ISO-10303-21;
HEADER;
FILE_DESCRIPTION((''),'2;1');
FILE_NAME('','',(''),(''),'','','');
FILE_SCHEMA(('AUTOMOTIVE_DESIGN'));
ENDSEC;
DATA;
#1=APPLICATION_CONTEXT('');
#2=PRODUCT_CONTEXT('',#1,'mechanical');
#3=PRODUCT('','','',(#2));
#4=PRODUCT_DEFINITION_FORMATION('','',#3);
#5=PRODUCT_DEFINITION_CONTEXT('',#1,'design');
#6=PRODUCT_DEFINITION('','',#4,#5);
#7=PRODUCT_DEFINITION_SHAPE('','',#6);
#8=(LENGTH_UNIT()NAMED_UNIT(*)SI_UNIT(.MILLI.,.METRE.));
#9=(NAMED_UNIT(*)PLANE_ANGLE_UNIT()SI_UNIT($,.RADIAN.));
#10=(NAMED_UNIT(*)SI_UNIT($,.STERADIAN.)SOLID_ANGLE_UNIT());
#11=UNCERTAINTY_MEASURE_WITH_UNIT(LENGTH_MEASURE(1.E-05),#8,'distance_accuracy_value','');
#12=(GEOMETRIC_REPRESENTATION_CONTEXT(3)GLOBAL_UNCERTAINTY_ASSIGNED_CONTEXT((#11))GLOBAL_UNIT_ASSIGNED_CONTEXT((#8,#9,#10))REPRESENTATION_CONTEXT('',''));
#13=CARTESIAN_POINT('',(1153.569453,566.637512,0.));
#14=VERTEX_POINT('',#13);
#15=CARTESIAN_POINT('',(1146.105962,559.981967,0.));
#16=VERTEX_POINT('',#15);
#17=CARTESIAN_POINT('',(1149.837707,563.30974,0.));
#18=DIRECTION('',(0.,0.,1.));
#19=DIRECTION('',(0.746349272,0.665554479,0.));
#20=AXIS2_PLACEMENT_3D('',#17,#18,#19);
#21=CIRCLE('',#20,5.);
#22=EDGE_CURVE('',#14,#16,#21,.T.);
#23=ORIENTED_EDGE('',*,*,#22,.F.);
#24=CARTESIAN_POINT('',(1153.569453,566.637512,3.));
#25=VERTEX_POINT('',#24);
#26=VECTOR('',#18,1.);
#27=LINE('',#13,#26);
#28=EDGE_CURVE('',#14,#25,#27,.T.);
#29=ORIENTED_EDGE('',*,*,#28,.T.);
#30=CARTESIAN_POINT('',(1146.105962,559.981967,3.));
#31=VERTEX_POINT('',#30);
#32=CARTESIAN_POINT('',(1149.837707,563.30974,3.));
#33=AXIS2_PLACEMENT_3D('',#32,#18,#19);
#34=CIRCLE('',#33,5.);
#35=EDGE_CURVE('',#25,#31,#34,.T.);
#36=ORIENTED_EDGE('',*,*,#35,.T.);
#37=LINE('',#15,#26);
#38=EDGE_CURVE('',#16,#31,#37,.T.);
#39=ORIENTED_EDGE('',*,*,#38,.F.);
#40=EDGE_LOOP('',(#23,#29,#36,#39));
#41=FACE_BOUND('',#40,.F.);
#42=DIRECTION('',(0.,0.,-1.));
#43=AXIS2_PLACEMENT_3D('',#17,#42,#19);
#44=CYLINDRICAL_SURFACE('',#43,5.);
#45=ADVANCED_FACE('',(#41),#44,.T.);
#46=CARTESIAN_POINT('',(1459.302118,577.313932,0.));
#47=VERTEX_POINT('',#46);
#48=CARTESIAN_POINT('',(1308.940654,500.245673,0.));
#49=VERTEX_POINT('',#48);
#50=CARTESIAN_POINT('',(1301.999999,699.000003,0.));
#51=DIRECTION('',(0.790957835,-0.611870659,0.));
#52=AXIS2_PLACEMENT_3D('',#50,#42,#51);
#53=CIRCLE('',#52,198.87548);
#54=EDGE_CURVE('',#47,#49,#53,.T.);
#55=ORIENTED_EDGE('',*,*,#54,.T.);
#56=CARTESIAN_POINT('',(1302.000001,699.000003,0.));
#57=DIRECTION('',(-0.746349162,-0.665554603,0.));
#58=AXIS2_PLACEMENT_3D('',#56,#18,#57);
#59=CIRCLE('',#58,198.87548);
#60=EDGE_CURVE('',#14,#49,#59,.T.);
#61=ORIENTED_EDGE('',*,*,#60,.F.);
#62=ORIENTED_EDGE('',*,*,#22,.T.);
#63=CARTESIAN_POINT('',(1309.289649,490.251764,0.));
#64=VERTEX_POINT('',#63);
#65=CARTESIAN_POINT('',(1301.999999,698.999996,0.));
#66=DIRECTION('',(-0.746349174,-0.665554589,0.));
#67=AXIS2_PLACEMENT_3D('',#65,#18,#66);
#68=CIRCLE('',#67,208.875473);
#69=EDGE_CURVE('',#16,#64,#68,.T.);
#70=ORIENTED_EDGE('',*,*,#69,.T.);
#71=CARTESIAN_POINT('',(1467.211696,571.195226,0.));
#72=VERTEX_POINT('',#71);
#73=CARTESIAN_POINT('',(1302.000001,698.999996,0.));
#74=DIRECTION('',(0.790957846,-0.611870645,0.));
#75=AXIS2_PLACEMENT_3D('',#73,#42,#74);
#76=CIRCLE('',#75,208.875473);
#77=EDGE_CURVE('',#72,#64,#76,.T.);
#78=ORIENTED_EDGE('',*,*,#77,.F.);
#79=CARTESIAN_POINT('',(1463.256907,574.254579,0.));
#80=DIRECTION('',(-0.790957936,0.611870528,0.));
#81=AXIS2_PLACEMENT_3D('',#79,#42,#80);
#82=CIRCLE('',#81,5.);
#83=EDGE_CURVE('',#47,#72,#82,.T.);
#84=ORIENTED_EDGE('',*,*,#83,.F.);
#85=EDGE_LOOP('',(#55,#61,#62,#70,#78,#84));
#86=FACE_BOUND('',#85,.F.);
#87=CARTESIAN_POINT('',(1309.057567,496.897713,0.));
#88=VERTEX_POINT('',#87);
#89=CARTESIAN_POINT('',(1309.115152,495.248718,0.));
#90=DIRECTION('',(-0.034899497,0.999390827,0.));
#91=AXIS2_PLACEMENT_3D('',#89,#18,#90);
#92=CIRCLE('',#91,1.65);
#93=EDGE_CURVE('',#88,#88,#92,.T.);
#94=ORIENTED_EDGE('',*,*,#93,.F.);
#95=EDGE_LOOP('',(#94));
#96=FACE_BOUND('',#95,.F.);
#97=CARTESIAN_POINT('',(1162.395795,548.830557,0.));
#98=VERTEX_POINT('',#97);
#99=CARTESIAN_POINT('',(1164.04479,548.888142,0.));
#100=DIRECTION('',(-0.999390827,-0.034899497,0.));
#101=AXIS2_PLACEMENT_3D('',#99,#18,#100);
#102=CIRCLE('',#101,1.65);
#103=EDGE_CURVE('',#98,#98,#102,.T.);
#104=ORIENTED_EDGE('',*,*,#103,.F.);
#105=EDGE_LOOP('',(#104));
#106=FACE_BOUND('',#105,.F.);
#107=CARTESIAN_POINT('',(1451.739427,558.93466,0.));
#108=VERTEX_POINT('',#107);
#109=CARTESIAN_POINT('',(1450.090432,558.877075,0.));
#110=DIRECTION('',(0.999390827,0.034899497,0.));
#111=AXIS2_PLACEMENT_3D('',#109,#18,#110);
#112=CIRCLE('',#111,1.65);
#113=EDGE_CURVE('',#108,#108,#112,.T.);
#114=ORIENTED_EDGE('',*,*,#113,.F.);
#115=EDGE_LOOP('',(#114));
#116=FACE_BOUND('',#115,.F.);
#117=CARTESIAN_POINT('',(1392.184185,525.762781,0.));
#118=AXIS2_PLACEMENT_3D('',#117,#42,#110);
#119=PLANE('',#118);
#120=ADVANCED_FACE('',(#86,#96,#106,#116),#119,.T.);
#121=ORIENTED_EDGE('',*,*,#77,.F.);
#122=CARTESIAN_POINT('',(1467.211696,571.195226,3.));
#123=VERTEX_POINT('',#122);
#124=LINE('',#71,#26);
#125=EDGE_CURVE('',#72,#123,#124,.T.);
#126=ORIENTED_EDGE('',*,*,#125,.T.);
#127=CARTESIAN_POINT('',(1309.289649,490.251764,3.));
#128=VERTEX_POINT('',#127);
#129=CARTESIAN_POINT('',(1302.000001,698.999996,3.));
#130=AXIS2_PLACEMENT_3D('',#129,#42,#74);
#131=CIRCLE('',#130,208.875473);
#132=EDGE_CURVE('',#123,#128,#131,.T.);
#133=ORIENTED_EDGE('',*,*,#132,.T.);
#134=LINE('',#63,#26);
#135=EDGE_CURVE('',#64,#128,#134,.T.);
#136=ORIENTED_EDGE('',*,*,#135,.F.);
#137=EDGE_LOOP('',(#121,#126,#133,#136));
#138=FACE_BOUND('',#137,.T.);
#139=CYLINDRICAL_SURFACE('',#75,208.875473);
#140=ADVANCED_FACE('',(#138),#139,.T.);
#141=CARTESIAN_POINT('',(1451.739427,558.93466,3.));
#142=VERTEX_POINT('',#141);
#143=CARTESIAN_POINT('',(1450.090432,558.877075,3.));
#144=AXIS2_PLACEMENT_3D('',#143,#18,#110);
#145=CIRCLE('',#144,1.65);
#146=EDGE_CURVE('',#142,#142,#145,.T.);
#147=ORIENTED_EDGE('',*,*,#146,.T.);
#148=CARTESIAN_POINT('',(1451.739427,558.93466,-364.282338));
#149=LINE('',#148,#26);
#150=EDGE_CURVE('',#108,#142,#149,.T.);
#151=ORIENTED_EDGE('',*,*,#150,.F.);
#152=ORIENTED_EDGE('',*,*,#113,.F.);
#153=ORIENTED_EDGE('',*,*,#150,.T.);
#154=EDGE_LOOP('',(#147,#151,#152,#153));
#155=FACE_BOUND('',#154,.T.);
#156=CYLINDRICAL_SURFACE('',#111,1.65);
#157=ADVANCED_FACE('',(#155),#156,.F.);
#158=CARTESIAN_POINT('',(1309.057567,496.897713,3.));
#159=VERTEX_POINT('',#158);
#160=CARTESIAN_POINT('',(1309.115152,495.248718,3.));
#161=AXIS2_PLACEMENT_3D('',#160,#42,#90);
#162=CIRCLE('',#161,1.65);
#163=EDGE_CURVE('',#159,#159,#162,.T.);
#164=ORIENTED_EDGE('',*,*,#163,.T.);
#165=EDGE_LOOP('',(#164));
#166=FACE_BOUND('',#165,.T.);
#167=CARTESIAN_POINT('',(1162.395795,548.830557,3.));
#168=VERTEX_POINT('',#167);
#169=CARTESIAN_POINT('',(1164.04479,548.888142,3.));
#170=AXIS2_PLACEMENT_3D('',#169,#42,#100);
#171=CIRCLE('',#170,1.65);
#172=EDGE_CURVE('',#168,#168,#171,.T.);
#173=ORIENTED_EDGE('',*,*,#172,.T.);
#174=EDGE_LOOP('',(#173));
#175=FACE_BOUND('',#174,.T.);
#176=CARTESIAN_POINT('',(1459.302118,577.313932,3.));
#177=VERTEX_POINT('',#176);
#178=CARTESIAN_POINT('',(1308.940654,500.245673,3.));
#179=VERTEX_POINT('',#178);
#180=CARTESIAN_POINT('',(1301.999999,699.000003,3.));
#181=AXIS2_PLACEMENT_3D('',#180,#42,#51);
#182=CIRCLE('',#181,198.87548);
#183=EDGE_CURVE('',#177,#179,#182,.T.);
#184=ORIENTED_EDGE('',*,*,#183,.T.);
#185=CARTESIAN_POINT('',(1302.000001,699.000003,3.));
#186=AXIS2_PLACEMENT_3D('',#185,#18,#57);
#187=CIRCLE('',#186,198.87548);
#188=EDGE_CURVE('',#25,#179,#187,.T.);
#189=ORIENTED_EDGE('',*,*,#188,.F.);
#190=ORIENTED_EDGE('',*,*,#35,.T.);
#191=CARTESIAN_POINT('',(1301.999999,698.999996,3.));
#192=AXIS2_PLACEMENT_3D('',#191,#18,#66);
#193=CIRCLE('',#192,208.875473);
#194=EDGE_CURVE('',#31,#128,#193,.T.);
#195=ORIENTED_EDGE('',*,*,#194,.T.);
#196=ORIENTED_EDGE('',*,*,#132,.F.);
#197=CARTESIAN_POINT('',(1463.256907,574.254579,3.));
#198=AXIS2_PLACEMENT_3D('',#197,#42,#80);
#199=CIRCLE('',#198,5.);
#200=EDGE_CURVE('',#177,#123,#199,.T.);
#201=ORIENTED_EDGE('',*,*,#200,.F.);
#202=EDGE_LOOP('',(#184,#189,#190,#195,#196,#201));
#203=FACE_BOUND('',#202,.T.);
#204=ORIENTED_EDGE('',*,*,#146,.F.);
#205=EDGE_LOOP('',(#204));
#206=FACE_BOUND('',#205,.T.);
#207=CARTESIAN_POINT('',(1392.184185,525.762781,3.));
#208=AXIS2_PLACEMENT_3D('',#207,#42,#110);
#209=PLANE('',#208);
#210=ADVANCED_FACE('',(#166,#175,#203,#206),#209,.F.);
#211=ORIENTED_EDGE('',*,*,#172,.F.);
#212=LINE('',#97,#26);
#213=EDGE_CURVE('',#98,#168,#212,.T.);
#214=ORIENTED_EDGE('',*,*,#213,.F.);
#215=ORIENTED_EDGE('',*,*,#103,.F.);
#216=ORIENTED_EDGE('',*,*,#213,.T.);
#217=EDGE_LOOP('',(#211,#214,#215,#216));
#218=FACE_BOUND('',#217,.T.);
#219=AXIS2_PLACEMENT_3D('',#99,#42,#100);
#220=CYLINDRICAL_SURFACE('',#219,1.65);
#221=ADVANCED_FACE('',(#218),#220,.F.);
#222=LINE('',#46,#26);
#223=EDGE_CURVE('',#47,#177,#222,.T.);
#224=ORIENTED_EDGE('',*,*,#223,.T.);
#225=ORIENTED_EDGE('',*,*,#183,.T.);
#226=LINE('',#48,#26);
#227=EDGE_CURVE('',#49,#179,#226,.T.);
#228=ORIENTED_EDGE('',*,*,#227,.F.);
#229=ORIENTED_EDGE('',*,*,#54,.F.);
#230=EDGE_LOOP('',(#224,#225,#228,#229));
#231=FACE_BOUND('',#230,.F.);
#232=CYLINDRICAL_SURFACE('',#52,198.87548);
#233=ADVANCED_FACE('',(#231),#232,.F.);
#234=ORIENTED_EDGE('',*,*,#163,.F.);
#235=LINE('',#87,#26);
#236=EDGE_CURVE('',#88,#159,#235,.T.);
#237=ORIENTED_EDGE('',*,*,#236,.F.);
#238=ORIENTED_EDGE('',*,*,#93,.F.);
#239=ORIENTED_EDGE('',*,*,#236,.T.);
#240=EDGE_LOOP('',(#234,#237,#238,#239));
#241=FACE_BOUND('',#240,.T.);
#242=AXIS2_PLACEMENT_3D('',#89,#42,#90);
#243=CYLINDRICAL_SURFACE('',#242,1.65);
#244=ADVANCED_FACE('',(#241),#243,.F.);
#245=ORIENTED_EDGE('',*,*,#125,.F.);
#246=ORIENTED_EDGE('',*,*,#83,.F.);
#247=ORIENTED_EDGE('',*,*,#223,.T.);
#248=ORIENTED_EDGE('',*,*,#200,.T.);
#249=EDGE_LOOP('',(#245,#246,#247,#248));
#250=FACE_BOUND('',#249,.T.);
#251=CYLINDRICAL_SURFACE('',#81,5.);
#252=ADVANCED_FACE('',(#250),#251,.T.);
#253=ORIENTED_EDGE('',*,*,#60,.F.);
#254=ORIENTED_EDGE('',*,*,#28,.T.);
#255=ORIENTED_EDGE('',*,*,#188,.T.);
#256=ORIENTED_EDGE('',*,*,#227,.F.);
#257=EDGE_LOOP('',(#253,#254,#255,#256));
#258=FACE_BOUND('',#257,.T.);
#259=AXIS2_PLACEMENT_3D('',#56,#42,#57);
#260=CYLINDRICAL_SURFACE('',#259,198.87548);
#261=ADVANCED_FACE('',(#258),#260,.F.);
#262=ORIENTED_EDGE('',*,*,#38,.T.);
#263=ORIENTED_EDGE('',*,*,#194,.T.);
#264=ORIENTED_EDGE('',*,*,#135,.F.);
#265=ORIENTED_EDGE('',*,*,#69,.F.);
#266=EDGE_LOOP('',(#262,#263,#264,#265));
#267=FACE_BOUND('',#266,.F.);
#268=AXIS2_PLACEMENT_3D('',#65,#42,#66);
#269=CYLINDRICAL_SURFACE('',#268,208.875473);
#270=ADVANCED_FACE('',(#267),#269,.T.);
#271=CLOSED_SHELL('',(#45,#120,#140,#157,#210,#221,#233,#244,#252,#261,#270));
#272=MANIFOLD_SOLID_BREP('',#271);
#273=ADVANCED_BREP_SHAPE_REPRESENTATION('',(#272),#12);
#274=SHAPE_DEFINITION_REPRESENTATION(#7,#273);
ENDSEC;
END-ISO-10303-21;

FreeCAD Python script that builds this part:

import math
import FreeCAD as App
import Part
import Sketcher
Q = App.Units.Quantity

doc = App.newDocument("Part")
body = doc.addObject("PartDesign::Body", "Body")

# Sketch on XY plane
sketch1 = body.newObject("Sketcher::SketchObject", "Sketch")
sketch1.AttachmentSupport = (doc.getObject("XY_Plane"), [""])
sketch1.MapMode = "FlatFace"
sketch1.addGeometry([
    Part.ArcOfCircle(Part.Circle(App.Vector(0, 0, 0), App.Vector(0, 0, 1), 198.9), math.radians(40), math.radians(90)),
    Part.ArcOfCircle(Part.Circle(App.Vector(156.8, 130.3, 0), App.Vector(0, 0, 1), 5), math.radians(-140), math.radians(40)),
    Part.ArcOfCircle(Part.Circle(App.Vector(0, 0, 0), App.Vector(0, 0, 1), 208.9), math.radians(40), math.radians(90)),
    Part.LineSegment(App.Vector(0, 208.9, 0), App.Vector(0, 198.9, 0)),
], False)
sketch1.addConstraint([
    Sketcher.Constraint("Tangent", 0, 1, 1, 1),
    Sketcher.Constraint("Tangent", 1, 2, 2, 1),
    Sketcher.Constraint("Coincident", 2, 2, 3, 1),
    Sketcher.Constraint("Coincident", 3, 2, 0, 2),
    Sketcher.Constraint("Vertical", 3),
    Sketcher.Constraint("Coincident", 0, 3, -1, 1),
    Sketcher.Constraint("Coincident", 2, 3, -1, 1),
    Sketcher.Constraint("PointOnObject", 2, 2, -2),
    Sketcher.Constraint("Radius", 1, Q("5 mm")),
    Sketcher.Constraint("Radius", 0, Q("198.87548 mm")),
    Sketcher.Constraint("DistanceY", 2, 3, 0, 1, Q("127.101701 mm")),
])
pad1 = body.newObject("PartDesign::Pad", "Pad")
pad1.Profile = sketch1
pad1.Length = 3

# Sketch on XY plane
sketch2 = body.newObject("Sketcher::SketchObject", "Sketch001")
sketch2.AttachmentSupport = (doc.getObject("XY_Plane"), [""])
sketch2.MapMode = "FlatFace"
sketch2.addGeometry([
    Part.Circle(App.Vector(143.1, 145.2, 0), App.Vector(0, 0, 1), 1.6),
    Part.LineSegment(App.Vector(0, 205.5, 0), App.Vector(0, 202.2, 0)),
    Part.ArcOfCircle(Part.Circle(App.Vector(0, 203.9, 0), App.Vector(0, 0, 1), 1.6), math.radians(-90), math.radians(90)),
], False)
sketch2.addConstraint([
    Sketcher.Constraint("Coincident", 1, 1, 2, 2),
    Sketcher.Constraint("Coincident", 2, 1, 1, 2),
    Sketcher.Constraint("Vertical", 1),
    Sketcher.Constraint("Equal", 0, 2),
    Sketcher.Constraint("PointOnObject", 2, 3, -2),
    Sketcher.Constraint("PointOnObject", 1, 1, -2),
    Sketcher.Constraint("Diameter", 0, Q("3.3 mm")),
    Sketcher.Constraint("DistanceX", -1, 1, 0, 3, Q("143.11 mm")),
    Sketcher.Constraint("DistanceY", 0, 3, 2, 3, Q("58.66963 mm")),
    Sketcher.Constraint("DistanceY", -1, 1, 0, 3, Q("145.205847 mm")),
])
pocket1 = body.newObject("PartDesign::Pocket", "Pocket")
pocket1.Profile = sketch2
pocket1.Type = "ThroughAll"
pocket1.Midplane = True
doc.recompute()

mirrored = body.newObject("PartDesign::Mirrored", "Mirrored")
mirrored.Originals = [pad1, pocket1]
mirrored.MirrorPlane = (doc.getObject("YZ_Plane"), [""])
body.Tip = mirrored
body2 = doc.addObject("PartDesign::Body", "Body001")
doc.recompute()

body.Placement = App.Placement(App.Vector(0, 0, 0), App.Rotation(App.Vector(0, 0, 1), 60))
boolean = body2.newObject("PartDesign::Boolean", "Boolean")
boolean.Type = "Fuse"
boolean.addObjects([body])
body3 = doc.addObject("PartDesign::Body", "Body002")
doc.recompute()

body2.Placement = App.Placement(App.Vector(1302, 699, 0), App.Rotation(App.Vector(0, 0, 1), 122))
boolean2 = body3.newObject("PartDesign::Boolean", "Boolean001")
boolean2.Type = "Fuse"
boolean2.addObjects([body2])

doc.recompute()
